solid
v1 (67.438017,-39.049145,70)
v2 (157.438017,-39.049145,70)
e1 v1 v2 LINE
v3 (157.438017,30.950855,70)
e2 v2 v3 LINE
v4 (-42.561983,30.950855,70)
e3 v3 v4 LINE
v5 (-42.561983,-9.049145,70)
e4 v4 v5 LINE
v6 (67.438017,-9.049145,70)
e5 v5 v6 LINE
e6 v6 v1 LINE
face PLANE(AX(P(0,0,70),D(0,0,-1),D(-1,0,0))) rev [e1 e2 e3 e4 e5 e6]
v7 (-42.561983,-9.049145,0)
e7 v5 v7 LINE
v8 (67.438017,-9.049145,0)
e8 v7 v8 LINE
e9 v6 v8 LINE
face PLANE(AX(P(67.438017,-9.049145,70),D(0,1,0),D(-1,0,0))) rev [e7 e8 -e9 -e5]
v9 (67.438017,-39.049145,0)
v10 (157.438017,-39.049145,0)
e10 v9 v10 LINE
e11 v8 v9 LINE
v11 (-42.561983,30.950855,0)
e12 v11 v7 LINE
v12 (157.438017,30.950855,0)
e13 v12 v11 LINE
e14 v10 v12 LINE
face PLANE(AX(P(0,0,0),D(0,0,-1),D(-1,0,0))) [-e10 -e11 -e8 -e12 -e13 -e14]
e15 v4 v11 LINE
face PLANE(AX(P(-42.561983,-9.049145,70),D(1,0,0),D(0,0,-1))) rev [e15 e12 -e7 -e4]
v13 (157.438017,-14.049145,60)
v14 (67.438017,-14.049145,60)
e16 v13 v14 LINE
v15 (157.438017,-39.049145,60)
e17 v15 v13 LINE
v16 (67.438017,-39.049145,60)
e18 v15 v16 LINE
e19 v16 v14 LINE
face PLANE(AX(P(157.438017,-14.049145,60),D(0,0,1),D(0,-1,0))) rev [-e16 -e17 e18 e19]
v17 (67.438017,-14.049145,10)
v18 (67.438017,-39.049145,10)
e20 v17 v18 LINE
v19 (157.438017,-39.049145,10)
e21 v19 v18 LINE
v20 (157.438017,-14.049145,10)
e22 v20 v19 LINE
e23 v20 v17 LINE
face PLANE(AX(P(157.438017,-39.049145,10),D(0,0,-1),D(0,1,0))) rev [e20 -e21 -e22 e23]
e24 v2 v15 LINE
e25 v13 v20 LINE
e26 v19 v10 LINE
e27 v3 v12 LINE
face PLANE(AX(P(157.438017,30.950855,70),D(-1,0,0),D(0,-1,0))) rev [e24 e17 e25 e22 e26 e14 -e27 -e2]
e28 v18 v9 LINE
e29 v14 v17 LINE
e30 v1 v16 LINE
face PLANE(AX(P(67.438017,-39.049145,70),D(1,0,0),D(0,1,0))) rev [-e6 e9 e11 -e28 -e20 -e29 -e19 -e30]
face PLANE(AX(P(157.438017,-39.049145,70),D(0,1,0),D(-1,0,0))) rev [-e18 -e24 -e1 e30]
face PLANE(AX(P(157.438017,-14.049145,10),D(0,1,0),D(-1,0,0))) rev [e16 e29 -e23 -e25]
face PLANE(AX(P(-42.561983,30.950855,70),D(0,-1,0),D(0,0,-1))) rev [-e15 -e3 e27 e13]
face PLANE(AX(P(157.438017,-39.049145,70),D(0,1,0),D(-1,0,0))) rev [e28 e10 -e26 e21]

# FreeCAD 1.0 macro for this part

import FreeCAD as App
import Part
import Sketcher


def add_polygon(sketch, points):
    """Adds a closed chain of lines whose ends are joined by coincident constraints."""
    first, n = sketch.GeometryCount, len(points)
    for a, b in zip(points, points[1:] + points[:1]):
        sketch.addGeometry(Part.LineSegment(App.Vector(*a, 0), App.Vector(*b, 0)), False)
    for i in range(n):
        sketch.addConstraint(Sketcher.Constraint("Coincident", first + i, 2, first + (i + 1) % n, 1))

doc = App.newDocument("Part")
body = doc.addObject("PartDesign::Body", "Body")

sketch1 = body.newObject("Sketcher::SketchObject", "Sketch")
sketch1.AttachmentSupport = (doc.getObject("XY_Plane"), [""])
sketch1.MapMode = "FlatFace"
add_polygon(sketch1, [(157, 31), (-43, 31), (-43, -9), (67, -9), (67, -39), (157, -39)])
sketch1.addConstraint([
    Sketcher.Constraint("Horizontal", 0),
    Sketcher.Constraint("Vertical", 1),
    Sketcher.Constraint("Horizontal", 2),
    Sketcher.Constraint("Vertical", 3),
    Sketcher.Constraint("Horizontal", 4),
    Sketcher.Constraint("Vertical", 5),
    Sketcher.Constraint("DistanceX", 0, 2, 0, 1, 200.0),
    Sketcher.Constraint("DistanceX", 2, 1, 2, 2, 110.0),
    Sketcher.Constraint("DistanceY", 1, 2, 1, 1, 40.0),
    Sketcher.Constraint("DistanceY", 3, 2, 3, 1, 30.0),
    Sketcher.Constraint("DistanceX", 0, 2, -1, 1, 42.561983),
    Sketcher.Constraint("DistanceY", -1, 1, 0, 2, 30.950855),
])
pad1 = body.newObject("PartDesign::Pad", "Pad")
pad1.Profile = sketch1
pad1.Length = 70

sketch2 = body.newObject("Sketcher::SketchObject", "Sketch001")
sketch2.AttachmentSupport = (doc.getObject("YZ_Plane"), [""])
sketch2.MapMode = "FlatFace"
sketch2.AttachmentOffset = App.Placement(App.Vector(0, 0, 67.438017), App.Rotation())
add_polygon(sketch2, [(-14, 10), (-39, 10), (-39, 60), (-14, 60)])
sketch2.addConstraint([
    Sketcher.Constraint("Horizontal", 0),
    Sketcher.Constraint("Vertical", 1),
    Sketcher.Constraint("Horizontal", 2),
    Sketcher.Constraint("Vertical", 3),
    Sketcher.Constraint("DistanceX", 0, 2, 0, 1, 25.0),
    Sketcher.Constraint("DistanceY", 1, 1, 1, 2, 50.0),
    Sketcher.Constraint("DistanceY", -1, 1, 0, 2, 10.0),
    Sketcher.Constraint("DistanceX", 0, 2, -1, 1, 39.049145),
])
pocket1 = body.newObject("PartDesign::Pocket", "Pocket")
pocket1.Profile = sketch2
pocket1.Type = "ThroughAll"
pocket1.Reversed = True

doc.recompute()
